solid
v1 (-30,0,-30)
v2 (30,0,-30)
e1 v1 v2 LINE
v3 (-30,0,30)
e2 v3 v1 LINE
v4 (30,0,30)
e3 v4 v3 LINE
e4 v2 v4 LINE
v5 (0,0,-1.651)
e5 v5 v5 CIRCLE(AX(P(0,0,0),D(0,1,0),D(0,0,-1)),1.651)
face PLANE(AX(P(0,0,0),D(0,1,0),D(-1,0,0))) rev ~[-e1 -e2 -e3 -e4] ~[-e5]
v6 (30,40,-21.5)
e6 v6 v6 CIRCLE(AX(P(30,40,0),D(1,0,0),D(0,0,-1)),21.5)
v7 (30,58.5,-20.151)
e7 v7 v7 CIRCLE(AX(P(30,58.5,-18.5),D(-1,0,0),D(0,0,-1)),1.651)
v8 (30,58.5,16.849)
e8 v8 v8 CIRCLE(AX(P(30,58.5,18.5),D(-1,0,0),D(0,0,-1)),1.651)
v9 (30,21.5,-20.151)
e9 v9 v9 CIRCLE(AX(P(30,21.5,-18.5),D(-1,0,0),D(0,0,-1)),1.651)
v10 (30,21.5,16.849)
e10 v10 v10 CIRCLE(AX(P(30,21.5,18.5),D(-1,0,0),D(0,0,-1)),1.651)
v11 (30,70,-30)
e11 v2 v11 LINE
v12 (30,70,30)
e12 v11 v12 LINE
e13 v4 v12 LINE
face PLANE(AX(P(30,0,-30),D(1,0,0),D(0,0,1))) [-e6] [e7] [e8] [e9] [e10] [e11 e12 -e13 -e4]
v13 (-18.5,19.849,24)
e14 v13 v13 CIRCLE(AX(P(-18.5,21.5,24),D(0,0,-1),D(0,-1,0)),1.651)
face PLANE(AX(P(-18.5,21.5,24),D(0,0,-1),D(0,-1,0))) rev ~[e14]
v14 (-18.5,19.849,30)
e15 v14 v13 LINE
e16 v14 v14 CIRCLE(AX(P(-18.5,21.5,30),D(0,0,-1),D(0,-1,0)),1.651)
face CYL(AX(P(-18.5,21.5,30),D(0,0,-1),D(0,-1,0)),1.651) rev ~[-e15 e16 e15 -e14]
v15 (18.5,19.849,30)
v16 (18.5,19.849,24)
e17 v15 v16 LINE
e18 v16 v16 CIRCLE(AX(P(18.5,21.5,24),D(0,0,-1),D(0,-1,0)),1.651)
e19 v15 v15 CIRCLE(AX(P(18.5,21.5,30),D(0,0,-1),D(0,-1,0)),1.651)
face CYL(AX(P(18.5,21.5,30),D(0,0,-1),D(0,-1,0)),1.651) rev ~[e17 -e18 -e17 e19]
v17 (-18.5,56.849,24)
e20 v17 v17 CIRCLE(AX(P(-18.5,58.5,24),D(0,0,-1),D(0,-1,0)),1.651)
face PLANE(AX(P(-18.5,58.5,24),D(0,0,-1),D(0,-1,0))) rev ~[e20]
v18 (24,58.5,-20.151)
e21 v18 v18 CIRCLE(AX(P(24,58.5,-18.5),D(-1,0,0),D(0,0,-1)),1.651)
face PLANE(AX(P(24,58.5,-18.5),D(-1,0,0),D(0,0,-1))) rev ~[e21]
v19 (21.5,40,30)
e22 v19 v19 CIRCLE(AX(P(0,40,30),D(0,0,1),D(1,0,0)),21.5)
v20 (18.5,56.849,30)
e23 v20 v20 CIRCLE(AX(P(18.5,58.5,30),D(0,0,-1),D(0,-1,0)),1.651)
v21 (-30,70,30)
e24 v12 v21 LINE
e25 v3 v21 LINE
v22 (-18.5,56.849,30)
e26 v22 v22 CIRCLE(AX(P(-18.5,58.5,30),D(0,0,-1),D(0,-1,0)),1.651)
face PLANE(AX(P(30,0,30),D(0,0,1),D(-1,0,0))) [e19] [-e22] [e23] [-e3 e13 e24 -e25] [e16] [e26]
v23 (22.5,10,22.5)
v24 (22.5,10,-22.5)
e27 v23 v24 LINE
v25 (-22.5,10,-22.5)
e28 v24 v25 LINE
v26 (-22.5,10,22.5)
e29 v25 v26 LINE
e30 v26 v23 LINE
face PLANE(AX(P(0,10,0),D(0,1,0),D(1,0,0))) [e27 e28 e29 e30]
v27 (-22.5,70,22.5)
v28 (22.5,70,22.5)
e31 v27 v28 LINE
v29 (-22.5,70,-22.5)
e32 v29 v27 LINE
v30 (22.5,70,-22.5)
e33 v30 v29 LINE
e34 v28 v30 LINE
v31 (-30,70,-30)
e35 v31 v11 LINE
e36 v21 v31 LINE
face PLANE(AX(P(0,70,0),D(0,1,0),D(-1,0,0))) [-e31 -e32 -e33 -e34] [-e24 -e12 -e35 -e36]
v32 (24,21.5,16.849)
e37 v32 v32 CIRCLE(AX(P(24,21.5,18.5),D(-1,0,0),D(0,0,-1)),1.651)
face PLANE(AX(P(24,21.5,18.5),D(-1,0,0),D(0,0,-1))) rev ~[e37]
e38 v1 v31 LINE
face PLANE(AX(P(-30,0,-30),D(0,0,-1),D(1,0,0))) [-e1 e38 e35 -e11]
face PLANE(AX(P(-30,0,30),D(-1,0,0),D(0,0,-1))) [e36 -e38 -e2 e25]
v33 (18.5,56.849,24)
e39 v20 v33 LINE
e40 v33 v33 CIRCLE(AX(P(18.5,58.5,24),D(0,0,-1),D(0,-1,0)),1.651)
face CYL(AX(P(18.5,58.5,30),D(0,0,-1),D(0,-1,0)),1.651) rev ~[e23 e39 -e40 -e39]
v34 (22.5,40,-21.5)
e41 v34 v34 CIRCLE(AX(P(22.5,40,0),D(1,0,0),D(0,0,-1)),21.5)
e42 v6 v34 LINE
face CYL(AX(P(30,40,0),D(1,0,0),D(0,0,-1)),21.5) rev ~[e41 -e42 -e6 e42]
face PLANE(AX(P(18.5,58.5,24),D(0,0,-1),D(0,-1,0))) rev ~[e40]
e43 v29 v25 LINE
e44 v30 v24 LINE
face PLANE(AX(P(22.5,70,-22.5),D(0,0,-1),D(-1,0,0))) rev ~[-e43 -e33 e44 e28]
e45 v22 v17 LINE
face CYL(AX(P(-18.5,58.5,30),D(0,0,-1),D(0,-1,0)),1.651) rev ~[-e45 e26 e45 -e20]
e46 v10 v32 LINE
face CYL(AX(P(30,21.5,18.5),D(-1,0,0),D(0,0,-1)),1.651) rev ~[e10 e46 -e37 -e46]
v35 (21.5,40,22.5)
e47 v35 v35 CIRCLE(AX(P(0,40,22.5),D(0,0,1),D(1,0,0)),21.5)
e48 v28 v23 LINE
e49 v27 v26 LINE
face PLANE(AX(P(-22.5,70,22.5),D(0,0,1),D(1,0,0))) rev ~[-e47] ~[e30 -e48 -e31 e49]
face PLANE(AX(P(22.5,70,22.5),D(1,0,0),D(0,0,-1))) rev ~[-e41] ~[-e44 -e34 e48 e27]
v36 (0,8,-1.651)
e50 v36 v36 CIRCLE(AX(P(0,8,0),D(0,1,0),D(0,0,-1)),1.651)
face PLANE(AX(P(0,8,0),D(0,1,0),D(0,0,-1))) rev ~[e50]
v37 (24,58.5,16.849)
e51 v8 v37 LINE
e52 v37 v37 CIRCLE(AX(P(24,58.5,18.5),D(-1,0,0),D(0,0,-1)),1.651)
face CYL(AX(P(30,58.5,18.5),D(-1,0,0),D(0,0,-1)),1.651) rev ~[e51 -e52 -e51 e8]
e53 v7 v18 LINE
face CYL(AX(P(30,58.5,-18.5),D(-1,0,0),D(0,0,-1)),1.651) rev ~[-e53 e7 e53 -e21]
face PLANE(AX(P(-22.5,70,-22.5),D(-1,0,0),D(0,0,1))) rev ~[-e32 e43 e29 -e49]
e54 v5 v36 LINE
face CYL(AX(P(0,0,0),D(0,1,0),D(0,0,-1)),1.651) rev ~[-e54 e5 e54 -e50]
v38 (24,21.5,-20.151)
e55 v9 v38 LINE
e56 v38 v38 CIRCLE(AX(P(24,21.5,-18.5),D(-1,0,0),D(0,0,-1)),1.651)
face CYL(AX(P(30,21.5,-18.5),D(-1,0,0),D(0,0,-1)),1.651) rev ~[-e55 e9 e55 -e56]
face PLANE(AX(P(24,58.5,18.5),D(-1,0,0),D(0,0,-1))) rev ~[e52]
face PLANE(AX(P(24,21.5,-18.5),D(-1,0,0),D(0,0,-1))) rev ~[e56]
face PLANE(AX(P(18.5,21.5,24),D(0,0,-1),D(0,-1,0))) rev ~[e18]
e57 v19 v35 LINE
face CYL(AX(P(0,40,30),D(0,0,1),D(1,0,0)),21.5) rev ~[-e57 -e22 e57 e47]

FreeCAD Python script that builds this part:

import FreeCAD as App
import Part
import Sketcher

V = App.Vector

doc = App.newDocument("Part")
body = doc.addObject("PartDesign::Body", "Body")

sketch1 = doc.addObject("Sketcher::SketchObject", "Sketch")
body.addObject(sketch1)
sketch1.AttachmentSupport = (doc.XZ_Plane, [""])
sketch1.MapMode = "FlatFace"
sketch1.addGeometry(Part.LineSegment(V(-30, 30, 0), V(30, 30, 0)), False)
sketch1.addGeometry(Part.LineSegment(V(30, 30, 0), V(30, -30, 0)), False)
sketch1.addGeometry(Part.LineSegment(V(30, -30, 0), V(-30, -30, 0)), False)
sketch1.addGeometry(Part.LineSegment(V(-30, -30, 0), V(-30, 30, 0)), False)
sketch1.addConstraint(Sketcher.Constraint("Coincident", 0, 2, 1, 1))
sketch1.addConstraint(Sketcher.Constraint("Coincident", 1, 2, 2, 1))
sketch1.addConstraint(Sketcher.Constraint("Coincident", 2, 2, 3, 1))
sketch1.addConstraint(Sketcher.Constraint("Coincident", 3, 2, 0, 1))
sketch1.addConstraint(Sketcher.Constraint("Horizontal", 0))
sketch1.addConstraint(Sketcher.Constraint("Vertical", 1))
sketch1.addConstraint(Sketcher.Constraint("Horizontal", 2))
sketch1.addConstraint(Sketcher.Constraint("Vertical", 3))
sketch1.addConstraint(Sketcher.Constraint("Symmetric", 0, 2, 2, 2, -1, 1))
sketch1.addConstraint(Sketcher.Constraint("Equal", 2, 1))
sketch1.addConstraint(Sketcher.Constraint("DistanceX", 0, 1, 0, 2, 60.0))
pad1 = doc.addObject("PartDesign::Pad", "Pad")
body.addObject(pad1)
pad1.Profile = sketch1
pad1.Length = 70
pad1.Reversed = True

sketch2 = doc.addObject("Sketcher::SketchObject", "Sketch001")
body.addObject(sketch2)
sketch2.AttachmentSupport = (doc.XZ_Plane, [""])
sketch2.MapMode = "FlatFace"
sketch2.AttachmentOffset = App.Placement(V(0, 0, -70), App.Rotation())
sketch2.addGeometry(Part.LineSegment(V(22.5, 22.5, 0), V(22.5, -22.5, 0)), False)
sketch2.addGeometry(Part.LineSegment(V(22.5, -22.5, 0), V(-22.5, -22.5, 0)), False)
sketch2.addGeometry(Part.LineSegment(V(-22.5, -22.5, 0), V(-22.5, 22.5, 0)), False)
sketch2.addGeometry(Part.LineSegment(V(-22.5, 22.5, 0), V(22.5, 22.5, 0)), False)
sketch2.addConstraint(Sketcher.Constraint("Coincident", 0, 2, 1, 1))
sketch2.addConstraint(Sketcher.Constraint("Coincident", 1, 2, 2, 1))
sketch2.addConstraint(Sketcher.Constraint("Coincident", 2, 2, 3, 1))
sketch2.addConstraint(Sketcher.Constraint("Coincident", 3, 2, 0, 1))
sketch2.addConstraint(Sketcher.Constraint("Vertical", 0))
sketch2.addConstraint(Sketcher.Constraint("Horizontal", 1))
sketch2.addConstraint(Sketcher.Constraint("Vertical", 2))
sketch2.addConstraint(Sketcher.Constraint("Horizontal", 3))
sketch2.addConstraint(Sketcher.Constraint("Symmetric", 0, 2, 2, 2, -1, 1))
sketch2.addConstraint(Sketcher.Constraint("Equal", 3, 0))
sketch2.addConstraint(Sketcher.Constraint("DistanceX", 1, 2, 1, 1, 45.0))
pocket1 = doc.addObject("PartDesign::Pocket", "Pocket")
body.addObject(pocket1)
pocket1.Profile = sketch2
pocket1.Length = 60
pocket1.Reversed = True

sketch3 = doc.addObject("Sketcher::SketchObject", "Sketch002")
body.addObject(sketch3)
sketch3.AttachmentSupport = (doc.XY_Plane, [""])
sketch3.MapMode = "FlatFace"
sketch3.AttachmentOffset = App.Placement(V(0, 0, 30), App.Rotation())
sketch3.addGeometry(Part.Circle(V(0, 40, 0), V(0, 0, 1), 21.5), False)
sketch3.addConstraint(Sketcher.Constraint("PointOnObject", 0, 3, -2))
sketch3.addConstraint(Sketcher.Constraint("Diameter", 0, 43.0))
sketch3.addConstraint(Sketcher.Constraint("DistanceY", -1, 1, 0, 3, 40.0))
pocket2 = doc.addObject("PartDesign::Pocket", "Pocket001")
body.addObject(pocket2)
pocket2.Profile = sketch3
pocket2.Length = 15

sketch4 = doc.addObject("Sketcher::SketchObject", "Sketch003")
body.addObject(sketch4)
sketch4.AttachmentSupport = (doc.YZ_Plane, [""])
sketch4.MapMode = "FlatFace"
sketch4.AttachmentOffset = App.Placement(V(0, 0, 30), App.Rotation())
sketch4.addGeometry(Part.Circle(V(40, 0, 0), V(0, 0, 1), 21.5), False)
sketch4.addConstraint(Sketcher.Constraint("PointOnObject", 0, 3, -1))
sketch4.addConstraint(Sketcher.Constraint("Diameter", 0, 43.0))
sketch4.addConstraint(Sketcher.Constraint("DistanceX", -1, 1, 0, 3, 40.0))
pocket3 = doc.addObject("PartDesign::Pocket", "Pocket002")
body.addObject(pocket3)
pocket3.Profile = sketch4
pocket3.Length = 15

sketch5 = doc.addObject("Sketcher::SketchObject", "Sketch004")
body.addObject(sketch5)
sketch5.AttachmentSupport = (doc.XZ_Plane, [""])
sketch5.MapMode = "FlatFace"
sketch5.addGeometry(Part.Circle(V(0, 0, 0), V(0, 0, 1), 1.651), False)
sketch5.addConstraint(Sketcher.Constraint("Coincident", 0, 3, -1, 1))
sketch5.addConstraint(Sketcher.Constraint("Diameter", 0, 3.302))
doc.recompute()
hole = doc.addObject("PartDesign::Hole", "Hole")
body.addObject(hole)
hole.Profile = sketch5
hole.ThreadType = "None"
hole.Diameter = 3.302
hole.DepthType = "Dimension"
hole.Depth = 8
hole.DrillPoint = "Flat"

sketch6 = doc.addObject("Sketcher::SketchObject", "Sketch005")
body.addObject(sketch6)
sketch6.AttachmentSupport = (doc.XY_Plane, [""])
sketch6.MapMode = "FlatFace"
sketch6.AttachmentOffset = App.Placement(V(0, 0, 30), App.Rotation())
sketch6.addGeometry(Part.Circle(V(-18.5, 58.5, 0), V(0, 0, 1), 1.651), False)
sketch6.addGeometry(Part.Circle(V(18.5, 58.5, 0), V(0, 0, 1), 1.651), False)
sketch6.addGeometry(Part.Circle(V(18.5, 21.5, 0), V(0, 0, 1), 1.651), False)
sketch6.addGeometry(Part.Circle(V(-18.5, 21.5, 0), V(0, 0, 1), 1.651), False)
sketch6.addConstraint(Sketcher.Constraint("Equal", 0, 1))
sketch6.addConstraint(Sketcher.Constraint("Equal", 1, 2))
sketch6.addConstraint(Sketcher.Constraint("Equal", 2, 3))
sketch6.addConstraint(Sketcher.Constraint("Symmetric", 0, 3, 1, 3, -2))
sketch6.addConstraint(Sketcher.Constraint("Symmetric", 2, 3, 3, 3, -2))
sketch6.addConstraint(Sketcher.Constraint("Vertical", 1, 3, 2, 3))
sketch6.addConstraint(Sketcher.Constraint("Diameter", 0, 3.302))
sketch6.addConstraint(Sketcher.Constraint("DistanceX", 0, 3, 1, 3, 37.0))
sketch6.addConstraint(Sketcher.Constraint("DistanceY", 2, 3, 1, 3, 37.0))
sketch6.addConstraint(Sketcher.Constraint("DistanceY", -1, 1, 0, 3, 58.5))
doc.recompute()
hole2 = doc.addObject("PartDesign::Hole", "Hole001")
body.addObject(hole2)
hole2.Profile = sketch6
hole2.ThreadType = "None"
hole2.Diameter = 3.302
hole2.DepthType = "Dimension"
hole2.Depth = 6
hole2.DrillPoint = "Flat"

sketch7 = doc.addObject("Sketcher::SketchObject", "Sketch006")
body.addObject(sketch7)
sketch7.AttachmentSupport = (doc.YZ_Plane, [""])
sketch7.MapMode = "FlatFace"
sketch7.AttachmentOffset = App.Placement(V(0, 0, 30), App.Rotation())
sketch7.addGeometry(Part.Circle(V(58.5, 18.5, 0), V(0, 0, 1), 1.651), False)
sketch7.addGeometry(Part.Circle(V(58.5, -18.5, 0), V(0, 0, 1), 1.651), False)
sketch7.addGeometry(Part.Circle(V(21.5, 18.5, 0), V(0, 0, 1), 1.651), False)
sketch7.addGeometry(Part.Circle(V(21.5, -18.5, 0), V(0, 0, 1), 1.651), False)
sketch7.addConstraint(Sketcher.Constraint("Equal", 0, 1))
sketch7.addConstraint(Sketcher.Constraint("Equal", 1, 2))
sketch7.addConstraint(Sketcher.Constraint("Equal", 2, 3))
sketch7.addConstraint(Sketcher.Constraint("Symmetric", 0, 3, 1, 3, -1))
sketch7.addConstraint(Sketcher.Constraint("Symmetric", 2, 3, 3, 3, -1))
sketch7.addConstraint(Sketcher.Constraint("Horizontal", 0, 3, 2, 3))
sketch7.addConstraint(Sketcher.Constraint("Diameter", 0, 3.302))
sketch7.addConstraint(Sketcher.Constraint("DistanceY", 1, 3, 0, 3, 37.0))
sketch7.addConstraint(Sketcher.Constraint("DistanceX", 2, 3, 0, 3, 37.0))
sketch7.addConstraint(Sketcher.Constraint("DistanceX", -1, 1, 0, 3, 58.5))
doc.recompute()
hole3 = doc.addObject("PartDesign::Hole", "Hole002")
body.addObject(hole3)
hole3.Profile = sketch7
hole3.ThreadType = "None"
hole3.Diameter = 3.302
hole3.DepthType = "Dimension"
hole3.Depth = 6
hole3.DrillPoint = "Flat"

doc.recompute()
